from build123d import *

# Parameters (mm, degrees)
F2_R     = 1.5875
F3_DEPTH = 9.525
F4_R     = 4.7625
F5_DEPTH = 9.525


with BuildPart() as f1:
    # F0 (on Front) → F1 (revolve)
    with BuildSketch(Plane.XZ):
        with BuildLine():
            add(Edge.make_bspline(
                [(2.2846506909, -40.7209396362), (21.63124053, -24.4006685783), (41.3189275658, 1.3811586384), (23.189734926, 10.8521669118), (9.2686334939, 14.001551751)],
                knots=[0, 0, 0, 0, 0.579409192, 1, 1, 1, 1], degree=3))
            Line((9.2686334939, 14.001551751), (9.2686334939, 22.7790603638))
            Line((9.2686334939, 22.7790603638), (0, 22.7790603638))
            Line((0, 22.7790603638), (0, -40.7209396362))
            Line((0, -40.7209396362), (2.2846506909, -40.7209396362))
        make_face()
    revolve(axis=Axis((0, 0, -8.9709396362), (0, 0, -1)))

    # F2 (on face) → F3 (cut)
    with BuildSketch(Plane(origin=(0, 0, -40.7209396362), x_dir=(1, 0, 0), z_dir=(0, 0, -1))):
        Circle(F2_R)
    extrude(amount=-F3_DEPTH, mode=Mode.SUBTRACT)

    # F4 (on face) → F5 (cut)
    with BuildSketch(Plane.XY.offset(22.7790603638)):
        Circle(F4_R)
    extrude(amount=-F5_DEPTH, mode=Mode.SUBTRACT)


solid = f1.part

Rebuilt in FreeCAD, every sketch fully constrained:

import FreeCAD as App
import Part
import Sketcher
from FreeCAD import Vector
Q = App.Units.Quantity

doc = App.newDocument("Part")
params = doc.addObject("Spreadsheet::Sheet", "Params")
for row, (alias, value) in enumerate([
    ("sketch1_height", "2.5 in"),
    ("revolution_angle", "360 deg"),
    ("sketch2_diameter", "0.125 in"),
    ("pocket1_length", "0.375 in"),
    ("sketch3_diameter", "0.375 in"),
    ("pocket2_length", "0.375 in"),
], start=1):
    params.set(f"A{row}", alias)
    params.set(f"B{row}", "=" + value)
    params.setAlias(f"B{row}", alias)

body = doc.addObject("PartDesign::Body", "Body")

# Sketch on XZ plane
sketch1 = body.newObject("Sketcher::SketchObject", "Sketch")
sketch1.AttachmentSupport = (doc.getObject("XZ_Plane"), [""])
sketch1.MapMode = "FlatFace"
sketch1.addGeometry([
    Part.BSplineCurve([Vector(2.284651, -40.72094, 0), Vector(21.631241, -24.400669, 0), Vector(41.318928, 1.381159, 0), Vector(23.189735, 10.852167, 0), Vector(9.268633, 14.001552, 0)], [4, 1, 4], [0, 0.579409192, 1], False, 3, [1, 1, 1, 1, 1], False),  # 0
    Part.LineSegment(Vector(9.268633, 14.001552, 0), Vector(9.268633, 22.77906, 0)),  # 1
    Part.LineSegment(Vector(9.268633, 22.77906, 0), Vector(0, 22.77906, 0)),  # 2
    Part.LineSegment(Vector(0, 22.77906, 0), Vector(0, -40.72094, 0)),  # 3
    Part.LineSegment(Vector(0, -40.72094, 0), Vector(2.284651, -40.72094, 0)),  # 4
], False)
sketch1.addConstraint([
    Sketcher.Constraint("Block", 0),
    Sketcher.Constraint("Coincident", 0, 2, 1, 1),
    Sketcher.Constraint("Coincident", 1, 2, 2, 1),
    Sketcher.Constraint("Coincident", 2, 2, 3, 1),
    Sketcher.Constraint("Coincident", 3, 2, 4, 1),
    Sketcher.Constraint("Coincident", 4, 2, 0, 1),
    Sketcher.Constraint("Vertical", 1),
    Sketcher.Constraint("Horizontal", 2),
    Sketcher.Constraint("Vertical", 3),
    Sketcher.Constraint("Horizontal", 4),
    Sketcher.Constraint("PointOnObject", 2, 2, -2),
    Sketcher.Constraint("DistanceY", 3, 2, 3, 1, Q("2.5 in")),
])
sketch1.setExpression("Constraints[11]", "Params.sketch1_height")
revolution = body.newObject("PartDesign::Revolution", "Revolution")
revolution.Profile = sketch1
revolution.ReferenceAxis = (sketch1, ["V_Axis"])
revolution.setExpression("Angle", "Params.revolution_angle")

# Sketch on XY plane
sketch2 = body.newObject("Sketcher::SketchObject", "Sketch001")
sketch2.AttachmentSupport = (doc.getObject("XY_Plane"), [""])
sketch2.MapMode = "FlatFace"
sketch2.AttachmentOffset = App.Placement(Vector(0, 0, -40.72094), App.Rotation())
sketch2.addGeometry(Part.Circle(Vector(0, 0, 0), Vector(0, 0, 1), 1.6), False)
sketch2.addConstraint([
    Sketcher.Constraint("Coincident", 0, 3, -1, 1),
    Sketcher.Constraint("Diameter", 0, Q("0.125 in")),
])
sketch2.setExpression("Constraints[1]", "Params.sketch2_diameter")
pocket1 = body.newObject("PartDesign::Pocket", "Pocket")
pocket1.Profile = sketch2
pocket1.setExpression("Length", "Params.pocket1_length")
pocket1.Reversed = True

# Sketch on XY plane
sketch3 = body.newObject("Sketcher::SketchObject", "Sketch002")
sketch3.AttachmentSupport = (doc.getObject("XY_Plane"), [""])
sketch3.MapMode = "FlatFace"
sketch3.AttachmentOffset = App.Placement(Vector(0, 0, 22.77906), App.Rotation())
sketch3.addGeometry(Part.Circle(Vector(0, 0, 0), Vector(0, 0, 1), 4.8), False)
sketch3.addConstraint([
    Sketcher.Constraint("Coincident", 0, 3, -1, 1),
    Sketcher.Constraint("Diameter", 0, Q("0.375 in")),
])
sketch3.setExpression("Constraints[1]", "Params.sketch3_diameter")
pocket2 = body.newObject("PartDesign::Pocket", "Pocket001")
pocket2.Profile = sketch3
pocket2.setExpression("Length", "Params.pocket2_length")

doc.recompute()
